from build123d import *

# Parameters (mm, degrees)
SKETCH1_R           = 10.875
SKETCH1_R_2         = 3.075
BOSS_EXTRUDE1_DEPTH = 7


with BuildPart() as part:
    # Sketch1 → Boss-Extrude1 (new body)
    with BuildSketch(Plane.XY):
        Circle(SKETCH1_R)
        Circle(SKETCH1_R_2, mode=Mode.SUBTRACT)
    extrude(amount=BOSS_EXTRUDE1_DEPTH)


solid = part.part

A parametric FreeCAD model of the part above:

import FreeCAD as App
import Part
import Sketcher

doc = App.newDocument("Part")
params = doc.addObject("Spreadsheet::Sheet", "Params")
for row, (alias, value) in enumerate([
    ("sketch1_diameter", "21.75 mm"),
    ("sketch1_diameter2", "6.15 mm"),
    ("pad1_length", "7 mm"),
], start=1):
    params.set(f"A{row}", alias)
    params.set(f"B{row}", "=" + value)
    params.setAlias(f"B{row}", alias)

body = doc.addObject("PartDesign::Body", "Body")

sketch1 = body.newObject("Sketcher::SketchObject", "Sketch")
sketch1.AttachmentSupport = (doc.getObject("XY_Plane"), [""])
sketch1.MapMode = "FlatFace"
sketch1.addGeometry([
    Part.Circle(App.Vector(0, 0, 0), App.Vector(0, 0, 1), 10.9),
    Part.Circle(App.Vector(0, 0, 0), App.Vector(0, 0, 1), 3.1),
], False)
sketch1.addConstraint([
    Sketcher.Constraint("Coincident", 0, 3, -1, 1),
    Sketcher.Constraint("Coincident", 1, 3, -1, 1),
    Sketcher.Constraint("Diameter", 0, 21.75),
    Sketcher.Constraint("Diameter", 1, 6.15),
])
sketch1.setExpression("Constraints[2]", "Params.sketch1_diameter")
sketch1.setExpression("Constraints[3]", "Params.sketch1_diameter2")
pad1 = body.newObject("PartDesign::Pad", "Pad")
pad1.Profile = sketch1
pad1.setExpression("Length", "Params.pad1_length")

doc.recompute()
